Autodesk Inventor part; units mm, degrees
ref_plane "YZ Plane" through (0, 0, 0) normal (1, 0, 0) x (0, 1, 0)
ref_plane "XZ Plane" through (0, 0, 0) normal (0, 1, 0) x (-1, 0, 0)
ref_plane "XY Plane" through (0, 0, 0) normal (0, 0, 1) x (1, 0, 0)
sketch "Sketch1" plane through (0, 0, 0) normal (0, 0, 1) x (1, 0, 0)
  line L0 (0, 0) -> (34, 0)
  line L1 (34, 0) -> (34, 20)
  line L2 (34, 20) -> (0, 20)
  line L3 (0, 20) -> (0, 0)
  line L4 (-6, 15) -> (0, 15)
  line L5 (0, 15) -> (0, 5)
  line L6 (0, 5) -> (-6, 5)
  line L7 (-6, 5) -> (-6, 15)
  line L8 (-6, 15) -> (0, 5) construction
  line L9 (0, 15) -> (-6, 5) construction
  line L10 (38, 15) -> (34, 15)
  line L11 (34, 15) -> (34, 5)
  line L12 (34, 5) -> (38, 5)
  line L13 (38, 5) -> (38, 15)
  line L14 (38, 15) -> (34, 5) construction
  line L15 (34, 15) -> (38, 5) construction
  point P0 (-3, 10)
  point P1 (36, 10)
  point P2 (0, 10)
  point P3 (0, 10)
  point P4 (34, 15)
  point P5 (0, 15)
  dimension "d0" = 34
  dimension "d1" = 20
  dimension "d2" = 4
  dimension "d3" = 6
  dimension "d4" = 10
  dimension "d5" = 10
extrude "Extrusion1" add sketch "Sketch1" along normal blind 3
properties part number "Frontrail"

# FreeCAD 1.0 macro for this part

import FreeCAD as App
import Part
import Sketcher

V = App.Vector


def add_polygon(sketch, points):
    """Adds a closed chain of lines whose ends are joined by coincident constraints."""
    first, n = sketch.GeometryCount, len(points)
    for a, b in zip(points, points[1:] + points[:1]):
        sketch.addGeometry(Part.LineSegment(App.Vector(*a, 0), App.Vector(*b, 0)), False)
    for i in range(n):
        sketch.addConstraint(Sketcher.Constraint("Coincident", first + i, 2, first + (i + 1) % n, 1))

doc = App.newDocument("Part")
body = doc.addObject("PartDesign::Body", "Body")

sketch1 = body.newObject("Sketcher::SketchObject", "Sketch")
sketch1.AttachmentSupport = (doc.getObject("XY_Plane"), [""])
sketch1.MapMode = "FlatFace"
add_polygon(sketch1, [(0, 5), (0, 0), (34, 0), (34, 5), (38, 5), (38, 15), (34, 15), (34, 20), (0, 20), (0, 15), (-6, 15), (-6, 5)])
sketch1.addConstraint([
    Sketcher.Constraint("Vertical", 0),
    Sketcher.Constraint("Horizontal", 1),
    Sketcher.Constraint("Vertical", 2),
    Sketcher.Constraint("Horizontal", 3),
    Sketcher.Constraint("Vertical", 4),
    Sketcher.Constraint("Horizontal", 5),
    Sketcher.Constraint("Vertical", 6),
    Sketcher.Constraint("Horizontal", 7),
    Sketcher.Constraint("Vertical", 8),
    Sketcher.Constraint("Horizontal", 9),
    Sketcher.Constraint("Vertical", 10),
    Sketcher.Constraint("Horizontal", 11),
    Sketcher.Constraint("Coincident", 0, 2, -1, 1),
    Sketcher.Constraint("PointOnObject", 7, 2, -2),
    Sketcher.Constraint("Horizontal", 5, 2, 8, 2),
    Sketcher.Constraint("Horizontal", 3, 2, 10, 2),
    Sketcher.Constraint("Vertical", 2, 2, 5, 2),
    Sketcher.Constraint("Equal", 2, 6),
    Sketcher.Constraint("DistanceX", 1, 1, 1, 2, 34.0),
    Sketcher.Constraint("DistanceX", 3, 1, 3, 2, 4.0),
    Sketcher.Constraint("DistanceX", 9, 2, 9, 1, 6.0),
    Sketcher.Constraint("DistanceY", 4, 1, 4, 2, 10.0),
    Sketcher.Constraint("DistanceY", -1, 1, 6, 2, 20.0),
])
pad1 = body.newObject("PartDesign::Pad", "Pad")
pad1.Profile = sketch1
pad1.Length = 3

doc.recompute()
